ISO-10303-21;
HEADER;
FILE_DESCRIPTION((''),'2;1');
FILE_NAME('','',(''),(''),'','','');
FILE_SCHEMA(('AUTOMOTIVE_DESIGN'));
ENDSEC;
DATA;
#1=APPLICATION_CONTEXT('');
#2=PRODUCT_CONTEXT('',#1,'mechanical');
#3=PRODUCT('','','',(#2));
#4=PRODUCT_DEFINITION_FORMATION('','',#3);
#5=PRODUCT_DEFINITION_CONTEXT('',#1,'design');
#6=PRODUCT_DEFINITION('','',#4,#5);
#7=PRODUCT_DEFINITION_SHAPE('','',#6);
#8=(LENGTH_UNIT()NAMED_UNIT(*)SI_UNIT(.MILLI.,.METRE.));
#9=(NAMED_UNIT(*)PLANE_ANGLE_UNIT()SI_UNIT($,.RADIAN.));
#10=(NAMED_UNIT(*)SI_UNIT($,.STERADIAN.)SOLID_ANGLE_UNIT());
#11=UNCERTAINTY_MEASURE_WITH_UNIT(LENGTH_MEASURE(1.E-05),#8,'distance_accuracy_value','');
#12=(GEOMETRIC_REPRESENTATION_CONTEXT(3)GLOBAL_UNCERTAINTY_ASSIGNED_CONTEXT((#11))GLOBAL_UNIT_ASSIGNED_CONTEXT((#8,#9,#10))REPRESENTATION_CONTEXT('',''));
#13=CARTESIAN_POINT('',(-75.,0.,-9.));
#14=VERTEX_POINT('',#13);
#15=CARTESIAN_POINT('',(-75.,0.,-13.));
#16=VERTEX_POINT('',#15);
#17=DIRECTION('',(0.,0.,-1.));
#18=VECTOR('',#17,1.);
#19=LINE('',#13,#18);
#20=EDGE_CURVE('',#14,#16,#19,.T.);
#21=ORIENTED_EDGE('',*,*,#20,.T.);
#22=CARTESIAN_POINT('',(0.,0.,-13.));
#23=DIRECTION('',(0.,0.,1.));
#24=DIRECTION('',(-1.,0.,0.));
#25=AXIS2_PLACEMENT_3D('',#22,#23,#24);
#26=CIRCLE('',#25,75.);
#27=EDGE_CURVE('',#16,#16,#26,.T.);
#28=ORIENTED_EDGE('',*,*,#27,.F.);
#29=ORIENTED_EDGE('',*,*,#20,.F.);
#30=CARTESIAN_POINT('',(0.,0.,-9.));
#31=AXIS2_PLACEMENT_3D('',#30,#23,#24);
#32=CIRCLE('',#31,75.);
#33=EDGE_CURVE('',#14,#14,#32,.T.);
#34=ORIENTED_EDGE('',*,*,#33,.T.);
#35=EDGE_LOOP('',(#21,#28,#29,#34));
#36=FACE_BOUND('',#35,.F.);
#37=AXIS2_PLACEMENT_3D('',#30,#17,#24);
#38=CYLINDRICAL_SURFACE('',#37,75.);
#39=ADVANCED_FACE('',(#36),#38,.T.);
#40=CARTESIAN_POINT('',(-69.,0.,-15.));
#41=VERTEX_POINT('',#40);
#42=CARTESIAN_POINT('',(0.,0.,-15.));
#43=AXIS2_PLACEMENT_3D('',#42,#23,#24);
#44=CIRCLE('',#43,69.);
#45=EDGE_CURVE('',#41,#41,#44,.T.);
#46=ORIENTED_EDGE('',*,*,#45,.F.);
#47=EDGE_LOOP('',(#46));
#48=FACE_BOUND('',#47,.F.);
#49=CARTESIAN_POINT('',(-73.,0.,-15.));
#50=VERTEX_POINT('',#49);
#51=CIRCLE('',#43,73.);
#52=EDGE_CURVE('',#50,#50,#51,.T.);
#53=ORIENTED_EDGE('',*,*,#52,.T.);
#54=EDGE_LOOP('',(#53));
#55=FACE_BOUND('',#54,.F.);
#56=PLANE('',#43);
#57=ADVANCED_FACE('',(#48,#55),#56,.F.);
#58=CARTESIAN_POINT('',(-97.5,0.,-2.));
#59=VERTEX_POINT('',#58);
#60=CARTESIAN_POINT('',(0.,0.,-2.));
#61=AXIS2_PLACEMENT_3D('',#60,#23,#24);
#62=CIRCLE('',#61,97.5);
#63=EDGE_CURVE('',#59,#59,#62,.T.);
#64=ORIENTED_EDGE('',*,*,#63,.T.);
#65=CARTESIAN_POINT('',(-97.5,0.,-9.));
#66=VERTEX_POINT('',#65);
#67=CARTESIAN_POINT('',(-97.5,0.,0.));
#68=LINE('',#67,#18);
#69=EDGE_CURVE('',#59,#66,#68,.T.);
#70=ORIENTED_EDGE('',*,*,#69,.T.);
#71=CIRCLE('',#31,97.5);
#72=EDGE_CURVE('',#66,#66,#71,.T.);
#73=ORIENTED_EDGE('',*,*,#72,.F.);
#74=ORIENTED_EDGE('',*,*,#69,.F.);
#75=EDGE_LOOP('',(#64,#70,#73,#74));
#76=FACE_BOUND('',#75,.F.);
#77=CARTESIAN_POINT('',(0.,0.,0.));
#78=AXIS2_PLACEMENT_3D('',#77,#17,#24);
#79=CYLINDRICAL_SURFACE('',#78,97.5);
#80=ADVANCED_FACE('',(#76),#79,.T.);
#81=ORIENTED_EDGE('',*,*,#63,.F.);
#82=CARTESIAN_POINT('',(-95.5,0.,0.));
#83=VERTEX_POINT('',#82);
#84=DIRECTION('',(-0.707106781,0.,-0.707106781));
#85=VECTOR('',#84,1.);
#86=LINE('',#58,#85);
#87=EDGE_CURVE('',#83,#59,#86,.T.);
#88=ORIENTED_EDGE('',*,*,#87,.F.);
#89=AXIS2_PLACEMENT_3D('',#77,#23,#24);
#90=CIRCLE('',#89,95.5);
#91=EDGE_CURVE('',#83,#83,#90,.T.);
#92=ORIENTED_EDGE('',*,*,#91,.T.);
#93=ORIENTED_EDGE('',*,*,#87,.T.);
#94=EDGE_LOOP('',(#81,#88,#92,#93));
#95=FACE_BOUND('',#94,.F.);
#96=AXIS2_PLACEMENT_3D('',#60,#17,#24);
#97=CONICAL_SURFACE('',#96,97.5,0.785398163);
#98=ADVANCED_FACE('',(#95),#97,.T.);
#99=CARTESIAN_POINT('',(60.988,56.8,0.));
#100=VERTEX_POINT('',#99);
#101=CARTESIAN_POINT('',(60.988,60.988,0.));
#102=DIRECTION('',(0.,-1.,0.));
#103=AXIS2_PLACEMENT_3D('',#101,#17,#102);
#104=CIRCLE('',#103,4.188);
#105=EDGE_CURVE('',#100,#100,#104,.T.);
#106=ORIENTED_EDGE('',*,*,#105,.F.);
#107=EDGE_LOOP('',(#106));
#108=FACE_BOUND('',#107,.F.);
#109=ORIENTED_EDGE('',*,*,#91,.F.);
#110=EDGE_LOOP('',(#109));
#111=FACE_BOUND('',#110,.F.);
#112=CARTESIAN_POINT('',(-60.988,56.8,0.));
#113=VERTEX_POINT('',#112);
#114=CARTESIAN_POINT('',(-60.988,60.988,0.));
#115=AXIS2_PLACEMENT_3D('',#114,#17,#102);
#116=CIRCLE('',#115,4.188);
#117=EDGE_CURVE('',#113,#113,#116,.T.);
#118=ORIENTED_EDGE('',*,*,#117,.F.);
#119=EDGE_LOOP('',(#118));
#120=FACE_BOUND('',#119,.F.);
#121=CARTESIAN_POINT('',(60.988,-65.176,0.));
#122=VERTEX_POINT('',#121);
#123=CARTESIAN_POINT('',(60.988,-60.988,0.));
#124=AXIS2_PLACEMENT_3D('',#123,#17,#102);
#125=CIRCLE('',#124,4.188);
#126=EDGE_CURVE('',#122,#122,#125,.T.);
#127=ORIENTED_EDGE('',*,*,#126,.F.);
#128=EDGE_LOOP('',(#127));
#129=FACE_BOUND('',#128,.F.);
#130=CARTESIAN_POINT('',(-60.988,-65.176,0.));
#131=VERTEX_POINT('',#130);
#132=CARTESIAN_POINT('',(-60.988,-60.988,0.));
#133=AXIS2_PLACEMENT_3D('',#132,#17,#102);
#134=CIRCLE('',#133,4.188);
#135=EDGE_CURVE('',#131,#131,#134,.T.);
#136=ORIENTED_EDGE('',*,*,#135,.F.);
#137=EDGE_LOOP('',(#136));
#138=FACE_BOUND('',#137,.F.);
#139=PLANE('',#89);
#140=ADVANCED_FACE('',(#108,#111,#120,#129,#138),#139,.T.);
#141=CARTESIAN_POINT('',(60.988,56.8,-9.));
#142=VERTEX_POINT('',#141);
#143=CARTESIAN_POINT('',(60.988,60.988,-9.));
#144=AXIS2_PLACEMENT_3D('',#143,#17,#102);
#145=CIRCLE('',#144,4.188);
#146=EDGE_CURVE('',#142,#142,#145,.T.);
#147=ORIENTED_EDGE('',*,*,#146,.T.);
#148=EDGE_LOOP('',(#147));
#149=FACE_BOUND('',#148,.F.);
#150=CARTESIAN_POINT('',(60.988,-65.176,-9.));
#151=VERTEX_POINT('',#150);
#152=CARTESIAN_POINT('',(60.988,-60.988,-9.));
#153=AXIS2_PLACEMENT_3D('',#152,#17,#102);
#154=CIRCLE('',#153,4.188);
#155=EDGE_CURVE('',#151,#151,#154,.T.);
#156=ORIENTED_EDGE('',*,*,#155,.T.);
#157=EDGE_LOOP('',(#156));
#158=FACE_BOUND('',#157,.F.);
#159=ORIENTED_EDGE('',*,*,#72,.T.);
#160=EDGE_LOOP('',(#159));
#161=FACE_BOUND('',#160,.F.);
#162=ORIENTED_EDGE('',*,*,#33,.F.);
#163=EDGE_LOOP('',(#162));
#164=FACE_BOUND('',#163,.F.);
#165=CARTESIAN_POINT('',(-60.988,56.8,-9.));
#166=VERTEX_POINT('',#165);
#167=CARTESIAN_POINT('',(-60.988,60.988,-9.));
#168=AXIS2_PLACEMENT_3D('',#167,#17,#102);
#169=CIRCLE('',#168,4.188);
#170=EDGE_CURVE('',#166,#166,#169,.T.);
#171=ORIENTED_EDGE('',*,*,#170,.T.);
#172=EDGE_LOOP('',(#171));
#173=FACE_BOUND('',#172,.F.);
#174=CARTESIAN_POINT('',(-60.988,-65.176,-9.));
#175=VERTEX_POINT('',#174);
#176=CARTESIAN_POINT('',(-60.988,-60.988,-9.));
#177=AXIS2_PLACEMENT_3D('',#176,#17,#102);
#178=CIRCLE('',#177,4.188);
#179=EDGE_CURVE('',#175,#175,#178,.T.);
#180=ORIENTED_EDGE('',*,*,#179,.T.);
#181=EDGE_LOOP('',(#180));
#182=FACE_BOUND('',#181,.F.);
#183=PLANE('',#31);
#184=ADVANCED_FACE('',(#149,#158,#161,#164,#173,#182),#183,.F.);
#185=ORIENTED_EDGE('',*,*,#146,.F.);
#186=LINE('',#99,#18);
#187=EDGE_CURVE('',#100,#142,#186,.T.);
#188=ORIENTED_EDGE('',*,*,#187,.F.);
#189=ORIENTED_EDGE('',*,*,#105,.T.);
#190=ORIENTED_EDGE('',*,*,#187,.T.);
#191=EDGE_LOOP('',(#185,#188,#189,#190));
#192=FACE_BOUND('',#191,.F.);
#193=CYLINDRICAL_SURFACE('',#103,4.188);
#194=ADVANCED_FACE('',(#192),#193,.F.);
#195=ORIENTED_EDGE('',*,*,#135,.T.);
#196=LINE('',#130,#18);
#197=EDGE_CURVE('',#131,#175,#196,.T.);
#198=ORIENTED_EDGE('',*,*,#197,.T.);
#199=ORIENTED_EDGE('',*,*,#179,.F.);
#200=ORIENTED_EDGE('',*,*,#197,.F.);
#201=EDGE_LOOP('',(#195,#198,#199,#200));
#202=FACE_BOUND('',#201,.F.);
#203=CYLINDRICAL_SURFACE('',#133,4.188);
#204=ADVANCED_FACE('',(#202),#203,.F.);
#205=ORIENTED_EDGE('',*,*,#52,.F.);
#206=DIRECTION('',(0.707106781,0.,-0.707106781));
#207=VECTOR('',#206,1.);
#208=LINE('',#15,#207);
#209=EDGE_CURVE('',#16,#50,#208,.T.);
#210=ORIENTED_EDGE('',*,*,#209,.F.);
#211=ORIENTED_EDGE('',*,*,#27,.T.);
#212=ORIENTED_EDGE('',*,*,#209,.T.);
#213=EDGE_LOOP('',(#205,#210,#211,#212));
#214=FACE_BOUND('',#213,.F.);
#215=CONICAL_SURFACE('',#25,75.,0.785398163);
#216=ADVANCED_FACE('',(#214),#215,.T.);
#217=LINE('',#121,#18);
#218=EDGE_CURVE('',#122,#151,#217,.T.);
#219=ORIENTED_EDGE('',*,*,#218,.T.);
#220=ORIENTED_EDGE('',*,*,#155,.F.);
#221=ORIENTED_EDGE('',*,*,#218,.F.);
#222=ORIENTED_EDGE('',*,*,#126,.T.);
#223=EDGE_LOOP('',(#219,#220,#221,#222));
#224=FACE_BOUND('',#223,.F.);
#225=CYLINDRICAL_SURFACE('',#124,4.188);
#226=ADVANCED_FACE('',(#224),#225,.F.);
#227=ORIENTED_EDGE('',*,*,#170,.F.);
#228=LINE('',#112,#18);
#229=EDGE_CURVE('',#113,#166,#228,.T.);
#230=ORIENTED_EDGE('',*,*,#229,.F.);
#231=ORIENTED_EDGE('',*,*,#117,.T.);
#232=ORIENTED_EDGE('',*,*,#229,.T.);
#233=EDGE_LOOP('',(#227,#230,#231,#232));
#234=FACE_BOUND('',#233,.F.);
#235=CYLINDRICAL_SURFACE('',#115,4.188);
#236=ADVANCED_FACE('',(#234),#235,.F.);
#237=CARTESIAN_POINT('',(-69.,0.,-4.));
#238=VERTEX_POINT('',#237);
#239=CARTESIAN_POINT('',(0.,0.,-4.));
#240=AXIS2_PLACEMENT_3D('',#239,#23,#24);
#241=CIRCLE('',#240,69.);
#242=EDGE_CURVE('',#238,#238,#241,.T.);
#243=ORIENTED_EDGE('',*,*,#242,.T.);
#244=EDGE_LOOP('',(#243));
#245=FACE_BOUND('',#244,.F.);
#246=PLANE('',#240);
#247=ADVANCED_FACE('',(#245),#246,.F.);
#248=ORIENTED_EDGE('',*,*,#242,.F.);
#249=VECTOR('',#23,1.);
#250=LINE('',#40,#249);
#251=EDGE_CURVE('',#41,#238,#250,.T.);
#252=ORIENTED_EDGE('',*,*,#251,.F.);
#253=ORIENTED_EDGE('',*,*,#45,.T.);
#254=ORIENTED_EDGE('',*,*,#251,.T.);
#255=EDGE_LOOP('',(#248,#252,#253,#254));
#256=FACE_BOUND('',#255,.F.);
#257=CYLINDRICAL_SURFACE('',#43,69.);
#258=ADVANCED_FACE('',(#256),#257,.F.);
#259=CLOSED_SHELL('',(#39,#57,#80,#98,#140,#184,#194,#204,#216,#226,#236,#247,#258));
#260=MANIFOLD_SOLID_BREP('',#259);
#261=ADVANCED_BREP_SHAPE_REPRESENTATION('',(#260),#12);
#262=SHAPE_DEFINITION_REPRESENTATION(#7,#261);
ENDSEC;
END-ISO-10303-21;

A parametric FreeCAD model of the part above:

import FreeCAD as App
import Part
import Sketcher

V = App.Vector


def edges_at(feature, points):
    """Names of the edges that pass closest to the given points."""
    edges = feature.Shape.Edges
    near = lambda p: min(range(len(edges)), key=lambda i: edges[i].distToShape(Part.Vertex(*p))[0])
    return sorted({f"Edge{near(p) + 1}" for p in points})

doc = App.newDocument("Part")
params = doc.addObject("Spreadsheet::Sheet", "Params")
for row, (alias, value) in enumerate([
    ("sketch1_height", "4 mm"),
    ("sketch1_height2", "9 mm"),
    ("sketch1_width", "69 mm"),
    ("sketch1_width2", "97.5 mm"),
    ("revolution_angle", "360 deg"),
    ("hole_diameter", "8.376 mm"),
    ("chamfer_size", "2 mm"),
], start=1):
    params.set(f"A{row}", alias)
    params.set(f"B{row}", "=" + value)
    params.setAlias(f"B{row}", alias)

body = doc.addObject("PartDesign::Body", "Body")

sketch1 = body.newObject("Sketcher::SketchObject", "Sketch")
sketch1.AttachmentSupport = (doc.getObject("XZ_Plane"), [""])
sketch1.MapMode = "FlatFace"
sketch1.addGeometry([
    Part.LineSegment(V(-97.5, 0, 0), V(0, 0, 0)),
    Part.LineSegment(V(0, 0, 0), V(0, -4, 0)),
    Part.LineSegment(V(0, -4, 0), V(-69, -4, 0)),
    Part.LineSegment(V(-69, -4, 0), V(-69, -15, 0)),
    Part.LineSegment(V(-69, -15, 0), V(-75, -15, 0)),
    Part.LineSegment(V(-75, -15, 0), V(-75, -9, 0)),
    Part.LineSegment(V(-75, -9, 0), V(-97.5, -9, 0)),
    Part.LineSegment(V(-97.5, -9, 0), V(-97.5, 0, 0)),
], False)
sketch1.addConstraint([
    Sketcher.Constraint("Coincident", 0, 2, 1, 1),
    Sketcher.Constraint("Coincident", 1, 2, 2, 1),
    Sketcher.Constraint("Coincident", 2, 2, 3, 1),
    Sketcher.Constraint("Coincident", 3, 2, 4, 1),
    Sketcher.Constraint("Coincident", 4, 2, 5, 1),
    Sketcher.Constraint("Coincident", 5, 2, 6, 1),
    Sketcher.Constraint("Coincident", 6, 2, 7, 1),
    Sketcher.Constraint("Coincident", 7, 2, 0, 1),
    Sketcher.Constraint("Horizontal", 0),
    Sketcher.Constraint("Vertical", 1),
    Sketcher.Constraint("Horizontal", 2),
    Sketcher.Constraint("Vertical", 3),
    Sketcher.Constraint("Horizontal", 4),
    Sketcher.Constraint("Vertical", 5),
    Sketcher.Constraint("Horizontal", 6),
    Sketcher.Constraint("Vertical", 7),
    Sketcher.Constraint("Coincident", 0, 2, -1, 1),
    Sketcher.Constraint("Equal", 4, 5),
    Sketcher.Constraint("DistanceY", 1, 2, 1, 1, 4.0),
    Sketcher.Constraint("DistanceY", 7, 1, 7, 2, 9.0),
    Sketcher.Constraint("DistanceY", 3, 2, -1, 1, 15.0),
    Sketcher.Constraint("DistanceX", 2, 2, 2, 1, 69.0),
    Sketcher.Constraint("DistanceX", 0, 1, 0, 2, 97.5),
])
sketch1.setExpression("Constraints[18]", "Params.sketch1_height")
sketch1.setExpression("Constraints[19]", "Params.sketch1_height2")
sketch1.setExpression("Constraints[21]", "Params.sketch1_width")
sketch1.setExpression("Constraints[22]", "Params.sketch1_width2")
revolution = body.newObject("PartDesign::Revolution", "Revolution")
revolution.Profile = sketch1
revolution.ReferenceAxis = (sketch1, ["V_Axis"])
revolution.setExpression("Angle", "Params.revolution_angle")

sketch2 = body.newObject("Sketcher::SketchObject", "Sketch001")
sketch2.AttachmentSupport = (doc.getObject("XY_Plane"), [""])
sketch2.MapMode = "FlatFace"
sketch2.addGeometry([
    Part.Circle(V(-61, -61, 0), V(0, 0, 1), 4.2),
    Part.Circle(V(61, -61, 0), V(0, 0, 1), 4.2),
    Part.Circle(V(61, 61, 0), V(0, 0, 1), 4.2),
    Part.Circle(V(-61, 61, 0), V(0, 0, 1), 4.2),
], False)
sketch2.addConstraint([
    Sketcher.Constraint("Equal", 0, 1),
    Sketcher.Constraint("Equal", 1, 2),
    Sketcher.Constraint("Equal", 2, 3),
    Sketcher.Constraint("Symmetric", 0, 3, 2, 3, -1, 1),
    Sketcher.Constraint("Symmetric", 1, 3, 3, 3, -1, 1),
    Sketcher.Constraint("Symmetric", 0, 3, 1, 3, -2),
    Sketcher.Constraint("Diameter", 0, 8.376),
    Sketcher.Constraint("DistanceX", 0, 3, -1, 1, 60.988),
    Sketcher.Constraint("DistanceY", 0, 3, -1, 1, 60.988),
])
doc.recompute()
hole = body.newObject("PartDesign::Hole", "Hole")
hole.Profile = sketch2
hole.ThreadType = "None"
hole.setExpression("Diameter", "Params.hole_diameter")
hole.DepthType = "ThroughAll"
doc.recompute()

chamfer = body.newObject("PartDesign::Chamfer", "Chamfer")
chamfer.Base = (hole, edges_at(hole, [(75, 0, -15), (97.5, 0, 0)]))
chamfer.setExpression("Size", "Params.chamfer_size")

doc.recompute()
